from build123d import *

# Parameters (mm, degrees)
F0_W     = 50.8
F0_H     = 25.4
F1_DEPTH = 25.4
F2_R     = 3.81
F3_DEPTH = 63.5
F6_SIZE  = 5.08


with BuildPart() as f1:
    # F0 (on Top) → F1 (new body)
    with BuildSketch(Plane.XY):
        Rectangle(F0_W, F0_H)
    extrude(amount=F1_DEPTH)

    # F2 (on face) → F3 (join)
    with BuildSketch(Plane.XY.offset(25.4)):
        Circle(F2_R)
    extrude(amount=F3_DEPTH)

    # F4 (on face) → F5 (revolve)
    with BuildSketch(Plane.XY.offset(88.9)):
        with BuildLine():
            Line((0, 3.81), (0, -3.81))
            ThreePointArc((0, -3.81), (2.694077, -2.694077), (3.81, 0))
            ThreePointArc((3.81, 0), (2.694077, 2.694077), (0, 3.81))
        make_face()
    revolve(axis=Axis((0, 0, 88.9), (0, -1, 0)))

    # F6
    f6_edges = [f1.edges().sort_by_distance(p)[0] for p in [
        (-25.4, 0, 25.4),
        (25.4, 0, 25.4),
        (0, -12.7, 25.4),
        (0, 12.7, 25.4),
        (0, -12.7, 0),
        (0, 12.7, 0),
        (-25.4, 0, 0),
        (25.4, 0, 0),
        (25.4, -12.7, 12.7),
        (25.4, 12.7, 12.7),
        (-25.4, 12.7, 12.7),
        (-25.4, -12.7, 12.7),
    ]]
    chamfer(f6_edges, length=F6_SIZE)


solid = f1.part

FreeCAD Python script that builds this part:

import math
import FreeCAD as App
import Part
import Sketcher
Q = App.Units.Quantity


def edges_at(feature, points):
    """Names of the edges that pass closest to the given points."""
    edges = feature.Shape.Edges
    near = lambda p: min(range(len(edges)), key=lambda i: edges[i].distToShape(Part.Vertex(*p))[0])
    return sorted({f"Edge{near(p) + 1}" for p in points})


def add_polygon(sketch, points):
    """Adds a closed chain of lines whose ends are joined by coincident constraints."""
    first, n = sketch.GeometryCount, len(points)
    for a, b in zip(points, points[1:] + points[:1]):
        sketch.addGeometry(Part.LineSegment(App.Vector(*a, 0), App.Vector(*b, 0)), False)
    for i in range(n):
        sketch.addConstraint(Sketcher.Constraint("Coincident", first + i, 2, first + (i + 1) % n, 1))

doc = App.newDocument("Part")
body = doc.addObject("PartDesign::Body", "Body")

# Sketch on XY plane
sketch1 = doc.addObject("Sketcher::SketchObject", "Sketch")
body.addObject(sketch1)
sketch1.AttachmentSupport = (doc.XY_Plane, [""])
sketch1.MapMode = "FlatFace"
add_polygon(sketch1, [(-25, 13), (-25, -13), (25, -13), (25, 13)])  # lines 0-3
sketch1.addConstraint(Sketcher.Constraint("Vertical", 0))
sketch1.addConstraint(Sketcher.Constraint("Horizontal", 1))
sketch1.addConstraint(Sketcher.Constraint("Vertical", 2))
sketch1.addConstraint(Sketcher.Constraint("Horizontal", 3))
sketch1.addConstraint(Sketcher.Constraint("Symmetric", 0, 2, 2, 2, -1, 1))
sketch1.addConstraint(Sketcher.Constraint("DistanceX", 1, 1, 1, 2, Q("2 in")))
sketch1.addConstraint(Sketcher.Constraint("DistanceY", 0, 2, 0, 1, Q("1 in")))
pad1 = doc.addObject("PartDesign::Pad", "Pad")
body.addObject(pad1)
pad1.Profile = sketch1
pad1.Length = Q("1 in")

# Sketch on XY plane
sketch2 = doc.addObject("Sketcher::SketchObject", "Sketch001")
body.addObject(sketch2)
sketch2.AttachmentSupport = (doc.XY_Plane, [""])
sketch2.MapMode = "FlatFace"
sketch2.AttachmentOffset = App.Placement(App.Vector(0, 0, 1 * 25.4), App.Rotation())
sketch2.addGeometry(Part.Circle(App.Vector(0, 0, 0), App.Vector(0, 0, 1), 3.8), False)
sketch2.addConstraint(Sketcher.Constraint("Coincident", 0, 3, -1, 1))
sketch2.addConstraint(Sketcher.Constraint("Diameter", 0, Q("0.3 in")))
pad2 = doc.addObject("PartDesign::Pad", "Pad001")
body.addObject(pad2)
pad2.Profile = sketch2
pad2.Length = Q("2.5 in")

# Sketch on XY plane
sketch3 = doc.addObject("Sketcher::SketchObject", "Sketch002")
body.addObject(sketch3)
sketch3.AttachmentSupport = (doc.XY_Plane, [""])
sketch3.MapMode = "FlatFace"
sketch3.AttachmentOffset = App.Placement(App.Vector(0, 0, 3.5 * 25.4), App.Rotation())
sketch3.addGeometry(Part.LineSegment(App.Vector(0, 3.8, 0), App.Vector(0, -3.8, 0)), False)
sketch3.addGeometry(Part.ArcOfCircle(Part.Circle(App.Vector(0, 0, 0), App.Vector(0, 0, 1), 3.8), math.radians(-90), math.radians(0)), False)
sketch3.addGeometry(Part.ArcOfCircle(Part.Circle(App.Vector(0, 0, 0), App.Vector(0, 0, 1), 3.8), math.radians(0), math.radians(90)), False)
sketch3.addConstraint(Sketcher.Constraint("Coincident", 0, 2, 1, 1))
sketch3.addConstraint(Sketcher.Constraint("Tangent", 1, 2, 2, 1))
sketch3.addConstraint(Sketcher.Constraint("Coincident", 2, 2, 0, 1))
sketch3.addConstraint(Sketcher.Constraint("Vertical", 0))
sketch3.addConstraint(Sketcher.Constraint("Coincident", 1, 3, -1, 1))
sketch3.addConstraint(Sketcher.Constraint("Equal", 1, 2))
sketch3.addConstraint(Sketcher.Constraint("PointOnObject", 0, 2, -2))
sketch3.addConstraint(Sketcher.Constraint("PointOnObject", 1, 2, -1))
sketch3.addConstraint(Sketcher.Constraint("Radius", 1, Q("0.15 in")))
revolution = doc.addObject("PartDesign::Revolution", "Revolution")
body.addObject(revolution)
revolution.Profile = sketch3
revolution.ReferenceAxis = (sketch3, ["V_Axis"])
revolution.Angle = 360
doc.recompute()

chamfer = doc.addObject("PartDesign::Chamfer", "Chamfer")
body.addObject(chamfer)
chamfer.Base = (revolution, edges_at(revolution, [
    (-25.4, 0, 25.4),
    (25.4, 0, 25.4),
    (0, -12.7, 25.4),
    (0, 12.7, 25.4),
    (0, -12.7, 0),
    (0, 12.7, 0),
    (-25.4, 0, 0),
    (25.4, 0, 0),
    (25.4, -12.7, 12.7),
    (25.4, 12.7, 12.7),
    (-25.4, 12.7, 12.7),
    (-25.4, -12.7, 12.7),
]))
chamfer.Size = Q("0.2 in")

doc.recompute()
